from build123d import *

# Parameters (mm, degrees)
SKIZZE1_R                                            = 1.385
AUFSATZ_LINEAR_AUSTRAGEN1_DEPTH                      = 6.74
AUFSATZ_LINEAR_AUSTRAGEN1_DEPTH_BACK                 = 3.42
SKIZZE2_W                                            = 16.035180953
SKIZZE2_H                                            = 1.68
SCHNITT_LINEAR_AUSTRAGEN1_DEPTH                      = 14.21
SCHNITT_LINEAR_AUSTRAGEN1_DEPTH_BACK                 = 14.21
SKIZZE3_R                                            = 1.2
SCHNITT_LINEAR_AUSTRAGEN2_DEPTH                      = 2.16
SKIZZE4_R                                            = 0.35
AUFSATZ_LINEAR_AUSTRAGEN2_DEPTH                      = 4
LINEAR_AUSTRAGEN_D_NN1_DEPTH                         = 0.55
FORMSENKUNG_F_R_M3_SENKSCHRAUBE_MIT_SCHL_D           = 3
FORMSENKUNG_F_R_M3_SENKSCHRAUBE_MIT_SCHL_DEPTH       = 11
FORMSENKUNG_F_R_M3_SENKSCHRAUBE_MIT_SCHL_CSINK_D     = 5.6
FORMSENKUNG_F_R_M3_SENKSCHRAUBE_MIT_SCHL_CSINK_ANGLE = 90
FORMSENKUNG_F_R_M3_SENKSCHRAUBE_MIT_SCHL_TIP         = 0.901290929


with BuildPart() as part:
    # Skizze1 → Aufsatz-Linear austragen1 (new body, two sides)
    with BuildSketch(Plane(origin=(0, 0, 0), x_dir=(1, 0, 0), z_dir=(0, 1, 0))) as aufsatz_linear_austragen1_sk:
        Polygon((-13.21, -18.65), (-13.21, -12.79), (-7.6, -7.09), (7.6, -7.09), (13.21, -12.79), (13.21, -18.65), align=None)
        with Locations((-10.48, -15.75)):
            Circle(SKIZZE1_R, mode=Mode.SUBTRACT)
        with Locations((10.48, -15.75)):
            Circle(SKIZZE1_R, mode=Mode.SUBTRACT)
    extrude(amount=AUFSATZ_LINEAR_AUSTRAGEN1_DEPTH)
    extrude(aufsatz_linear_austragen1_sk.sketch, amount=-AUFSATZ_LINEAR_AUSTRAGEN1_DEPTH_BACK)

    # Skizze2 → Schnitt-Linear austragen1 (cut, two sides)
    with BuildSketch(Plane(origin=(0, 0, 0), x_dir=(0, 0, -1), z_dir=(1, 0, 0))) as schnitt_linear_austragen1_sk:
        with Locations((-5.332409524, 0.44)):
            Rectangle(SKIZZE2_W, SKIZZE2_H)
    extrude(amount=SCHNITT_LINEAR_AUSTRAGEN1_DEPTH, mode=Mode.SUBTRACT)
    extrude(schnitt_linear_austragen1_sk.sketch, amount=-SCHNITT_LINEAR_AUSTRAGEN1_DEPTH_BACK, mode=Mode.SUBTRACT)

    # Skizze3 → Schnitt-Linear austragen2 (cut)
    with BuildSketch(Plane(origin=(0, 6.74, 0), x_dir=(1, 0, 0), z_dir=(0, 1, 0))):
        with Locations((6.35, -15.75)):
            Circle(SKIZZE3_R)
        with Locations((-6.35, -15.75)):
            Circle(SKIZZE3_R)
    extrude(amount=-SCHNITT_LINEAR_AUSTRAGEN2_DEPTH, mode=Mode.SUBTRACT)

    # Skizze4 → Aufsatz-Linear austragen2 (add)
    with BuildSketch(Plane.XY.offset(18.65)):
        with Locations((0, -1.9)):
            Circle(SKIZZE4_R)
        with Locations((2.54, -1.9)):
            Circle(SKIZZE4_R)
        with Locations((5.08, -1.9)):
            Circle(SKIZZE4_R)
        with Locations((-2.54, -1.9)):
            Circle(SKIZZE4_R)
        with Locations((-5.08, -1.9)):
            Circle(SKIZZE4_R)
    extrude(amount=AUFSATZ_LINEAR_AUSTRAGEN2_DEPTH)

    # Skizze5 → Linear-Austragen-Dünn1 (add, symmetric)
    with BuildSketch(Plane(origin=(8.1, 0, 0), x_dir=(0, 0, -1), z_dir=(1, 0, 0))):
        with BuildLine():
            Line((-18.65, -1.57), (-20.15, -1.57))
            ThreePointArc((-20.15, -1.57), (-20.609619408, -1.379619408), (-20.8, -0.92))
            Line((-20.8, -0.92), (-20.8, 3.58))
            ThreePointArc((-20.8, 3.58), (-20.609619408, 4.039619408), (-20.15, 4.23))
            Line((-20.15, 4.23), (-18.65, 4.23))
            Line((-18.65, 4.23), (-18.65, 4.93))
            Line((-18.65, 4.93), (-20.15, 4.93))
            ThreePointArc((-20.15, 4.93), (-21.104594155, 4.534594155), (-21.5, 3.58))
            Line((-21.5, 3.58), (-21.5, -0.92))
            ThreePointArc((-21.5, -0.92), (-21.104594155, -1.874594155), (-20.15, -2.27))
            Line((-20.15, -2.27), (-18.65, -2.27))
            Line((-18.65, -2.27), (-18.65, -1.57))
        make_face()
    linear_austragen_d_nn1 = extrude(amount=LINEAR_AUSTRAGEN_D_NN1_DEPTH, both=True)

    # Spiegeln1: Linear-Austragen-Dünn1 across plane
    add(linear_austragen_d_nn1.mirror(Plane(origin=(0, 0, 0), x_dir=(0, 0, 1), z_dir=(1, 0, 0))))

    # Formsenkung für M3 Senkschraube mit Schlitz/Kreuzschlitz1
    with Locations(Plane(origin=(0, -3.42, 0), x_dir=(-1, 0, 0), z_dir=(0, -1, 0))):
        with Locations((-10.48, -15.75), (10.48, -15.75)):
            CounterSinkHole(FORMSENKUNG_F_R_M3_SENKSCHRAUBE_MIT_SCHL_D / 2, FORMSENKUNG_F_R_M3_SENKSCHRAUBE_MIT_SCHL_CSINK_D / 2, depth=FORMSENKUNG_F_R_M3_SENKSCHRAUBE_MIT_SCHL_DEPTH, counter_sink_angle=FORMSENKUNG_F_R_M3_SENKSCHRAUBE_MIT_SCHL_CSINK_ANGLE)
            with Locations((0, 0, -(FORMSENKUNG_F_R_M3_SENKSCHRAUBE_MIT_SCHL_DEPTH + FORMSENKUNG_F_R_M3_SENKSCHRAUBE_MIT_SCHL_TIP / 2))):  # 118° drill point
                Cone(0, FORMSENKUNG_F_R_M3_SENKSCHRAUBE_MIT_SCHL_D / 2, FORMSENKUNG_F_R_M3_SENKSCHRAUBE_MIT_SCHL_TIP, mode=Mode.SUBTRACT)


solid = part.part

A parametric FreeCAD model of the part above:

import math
import FreeCAD as App
import Part
import Sketcher
from FreeCAD import Vector
Q = App.Units.Quantity

doc = App.newDocument("Part")
params = doc.addObject("Spreadsheet::Sheet", "Params")
for row, (alias, value) in enumerate([
    ("sketch1_diameter", "2.77 mm"),
    ("sketch1_width", "15.2 mm"),
    ("sketch1_width2", "26.42 mm"),
    ("sketch1_height", "5.86 mm"),
    ("pad1_length", "6.74 mm"),
    ("pad1_length2", "3.42 mm"),
    ("sketch2_width", "1.68 mm"),
    ("sketch3_diameter", "2.4 mm"),
    ("pocket2_length", "2.16 mm"),
    ("sketch4_diameter", "0.7 mm"),
    ("pad2_length", "4 mm"),
    ("sketch5_radius", "0.65 mm"),
    ("sketch5_radius2", "1.35 mm"),
    ("sketch5_width", "4.5 mm"),
    ("sketch5_height", "1.5 mm"),
    ("pad3_length", "1.1 mm"),
    ("sketch6_diameter", "3 mm"),
    ("hole_diameter", "3 mm"),
    ("hole_depth", "11 mm"),
    ("hole_csink_diameter", "5.6 mm"),
], start=1):
    params.set(f"A{row}", alias)
    params.set(f"B{row}", "=" + value)
    params.setAlias(f"B{row}", alias)

body = doc.addObject("PartDesign::Body", "Body")

sketch1 = body.newObject("Sketcher::SketchObject", "Sketch")
sketch1.AttachmentSupport = (doc.getObject("XZ_Plane"), [""])
sketch1.MapMode = "FlatFace"
sketch1.addGeometry([
    Part.LineSegment(Vector(-13.21, 12.79, 0), Vector(-13.21, 18.65, 0)),
    Part.LineSegment(Vector(-13.21, 18.65, 0), Vector(13.21, 18.65, 0)),
    Part.LineSegment(Vector(13.21, 18.65, 0), Vector(13.21, 12.79, 0)),
    Part.LineSegment(Vector(13.21, 12.79, 0), Vector(7.6, 7.09, 0)),
    Part.LineSegment(Vector(7.6, 7.09, 0), Vector(-7.6, 7.09, 0)),
    Part.LineSegment(Vector(-7.6, 7.09, 0), Vector(-13.21, 12.79, 0)),
    Part.Circle(Vector(10.48, 15.75, 0), Vector(0, 0, 1), 1.385),
    Part.Circle(Vector(-10.48, 15.75, 0), Vector(0, 0, 1), 1.385),
], False)
sketch1.addConstraint([
    Sketcher.Constraint("Coincident", 0, 2, 1, 1),
    Sketcher.Constraint("Coincident", 1, 2, 2, 1),
    Sketcher.Constraint("Coincident", 2, 2, 3, 1),
    Sketcher.Constraint("Coincident", 3, 2, 4, 1),
    Sketcher.Constraint("Coincident", 4, 2, 5, 1),
    Sketcher.Constraint("Coincident", 5, 2, 0, 1),
    Sketcher.Constraint("Vertical", 0),
    Sketcher.Constraint("Horizontal", 1),
    Sketcher.Constraint("Vertical", 2),
    Sketcher.Constraint("Horizontal", 4),
    Sketcher.Constraint("Equal", 6, 7),
    Sketcher.Constraint("Symmetric", 6, 3, 7, 3, -2),
    Sketcher.Constraint("Symmetric", 2, 2, 5, 2, -2),
    Sketcher.Constraint("Equal", 3, 5),
    Sketcher.Constraint("Diameter", 6, Q("2.77 mm")),
    Sketcher.Constraint("DistanceX", 4, 2, 4, 1, Q("15.2 mm")),
    Sketcher.Constraint("DistanceX", 1, 1, 1, 2, Q("26.42 mm")),
    Sketcher.Constraint("DistanceY", 0, 1, 0, 2, Q("5.86 mm")),
    Sketcher.Constraint("DistanceY", 7, 3, 0, 2, Q("2.9 mm")),
    Sketcher.Constraint("DistanceY", 3, 2, 2, 2, Q("5.7 mm")),
    Sketcher.Constraint("DistanceX", -1, 1, 6, 3, Q("10.48 mm")),
    Sketcher.Constraint("DistanceY", -1, 1, 6, 3, Q("15.75 mm")),
])
sketch1.setExpression("Constraints[14]", "Params.sketch1_diameter")
sketch1.setExpression("Constraints[15]", "Params.sketch1_width")
sketch1.setExpression("Constraints[16]", "Params.sketch1_width2")
sketch1.setExpression("Constraints[17]", "Params.sketch1_height")
pad1 = body.newObject("PartDesign::Pad", "Pad")
pad1.Profile = sketch1
pad1.Type = "TwoLengths"
pad1.setExpression("Length", "Params.pad1_length")
pad1.setExpression("Length2", "Params.pad1_length2")
pad1.Reversed = True

sketch2 = body.newObject("Sketcher::SketchObject", "Sketch001")
sketch2.AttachmentSupport = (doc.getObject("YZ_Plane"), [""])
sketch2.MapMode = "FlatFace"
sketch2.addGeometry([
    Part.LineSegment(Vector(1.28, 13.35, 0), Vector(-0.4, 13.35, 0)),
    Part.LineSegment(Vector(-0.4, 13.35, 0), Vector(-0.4, -2.685181, 0)),
    Part.LineSegment(Vector(-0.4, -2.685181, 0), Vector(1.28, -2.685181, 0)),
    Part.LineSegment(Vector(1.28, -2.685181, 0), Vector(1.28, 13.35, 0)),
], False)
sketch2.addConstraint([
    Sketcher.Constraint("Coincident", 0, 2, 1, 1),
    Sketcher.Constraint("Coincident", 1, 2, 2, 1),
    Sketcher.Constraint("Coincident", 2, 2, 3, 1),
    Sketcher.Constraint("Coincident", 3, 2, 0, 1),
    Sketcher.Constraint("Horizontal", 0),
    Sketcher.Constraint("Vertical", 1),
    Sketcher.Constraint("Horizontal", 2),
    Sketcher.Constraint("Vertical", 3),
    Sketcher.Constraint("DistanceX", 0, 2, 0, 1, Q("1.68 mm")),
    Sketcher.Constraint("DistanceX", 0, 2, -1, 1, Q("0.4 mm")),
    Sketcher.Constraint("DistanceY", -1, 1, 0, 2, Q("13.35 mm")),
    Sketcher.Constraint("DistanceY", 1, 2, 1, 1, Q("16.035181 mm")),
])
sketch2.setExpression("Constraints[8]", "Params.sketch2_width")
pocket1 = body.newObject("PartDesign::Pocket", "Pocket")
pocket1.Profile = sketch2
pocket1.Type = "ThroughAll"
pocket1.Midplane = True

sketch3 = body.newObject("Sketcher::SketchObject", "Sketch002")
sketch3.AttachmentSupport = (doc.getObject("XZ_Plane"), [""])
sketch3.MapMode = "FlatFace"
sketch3.AttachmentOffset = App.Placement(Vector(0, 0, -6.74), App.Rotation())
sketch3.addGeometry([
    Part.Circle(Vector(6.35, 15.75, 0), Vector(0, 0, 1), 1.2),
    Part.Circle(Vector(-6.35, 15.75, 0), Vector(0, 0, 1), 1.2),
], False)
sketch3.addConstraint([
    Sketcher.Constraint("Equal", 0, 1),
    Sketcher.Constraint("Symmetric", 0, 3, 1, 3, -2),
    Sketcher.Constraint("Diameter", 0, Q("2.4 mm")),
    Sketcher.Constraint("DistanceX", 1, 3, 0, 3, Q("12.7 mm")),
    Sketcher.Constraint("DistanceY", -1, 1, 0, 3, Q("15.75 mm")),
])
sketch3.setExpression("Constraints[2]", "Params.sketch3_diameter")
pocket2 = body.newObject("PartDesign::Pocket", "Pocket001")
pocket2.Profile = sketch3
pocket2.setExpression("Length", "Params.pocket2_length")
pocket2.Reversed = True

sketch4 = body.newObject("Sketcher::SketchObject", "Sketch003")
sketch4.AttachmentSupport = (doc.getObject("XY_Plane"), [""])
sketch4.MapMode = "FlatFace"
sketch4.AttachmentOffset = App.Placement(Vector(0, 0, 18.65), App.Rotation())
sketch4.addGeometry([
    Part.Circle(Vector(0, -1.9, 0), Vector(0, 0, 1), 0.35),
    Part.Circle(Vector(2.54, -1.9, 0), Vector(0, 0, 1), 0.35),
    Part.Circle(Vector(5.08, -1.9, 0), Vector(0, 0, 1), 0.35),
    Part.Circle(Vector(-2.54, -1.9, 0), Vector(0, 0, 1), 0.35),
    Part.Circle(Vector(-5.08, -1.9, 0), Vector(0, 0, 1), 0.35),
], False)
sketch4.addConstraint([
    Sketcher.Constraint("Equal", 0, 1),
    Sketcher.Constraint("Equal", 1, 2),
    Sketcher.Constraint("Equal", 2, 3),
    Sketcher.Constraint("Equal", 3, 4),
    Sketcher.Constraint("Symmetric", 1, 3, 3, 3, -2),
    Sketcher.Constraint("Symmetric", 2, 3, 4, 3, -2),
    Sketcher.Constraint("PointOnObject", 0, 3, -2),
    Sketcher.Constraint("Horizontal", 0, 3, 1, 3),
    Sketcher.Constraint("Horizontal", 1, 3, 2, 3),
    Sketcher.Constraint("Diameter", 0, Q("0.7 mm")),
    Sketcher.Constraint("DistanceY", 0, 3, -1, 1, Q("1.9 mm")),
    Sketcher.Constraint("DistanceX", -1, 1, 1, 3, Q("2.54 mm")),
    Sketcher.Constraint("DistanceX", -1, 1, 2, 3, Q("5.08 mm")),
])
sketch4.setExpression("Constraints[9]", "Params.sketch4_diameter")
pad2 = body.newObject("PartDesign::Pad", "Pad001")
pad2.Profile = sketch4
pad2.setExpression("Length", "Params.pad2_length")

sketch5 = body.newObject("Sketcher::SketchObject", "Sketch004")
sketch5.AttachmentSupport = (doc.getObject("YZ_Plane"), [""])
sketch5.MapMode = "FlatFace"
sketch5.AttachmentOffset = App.Placement(Vector(0, 0, 8.1), App.Rotation())
sketch5.addGeometry([
    Part.LineSegment(Vector(-1.57, 18.65, 0), Vector(-1.57, 20.15, 0)),
    Part.ArcOfCircle(Part.Circle(Vector(-0.92, 20.15, 0), Vector(0, 0, 1), 0.65), math.radians(90), math.radians(180)),
    Part.LineSegment(Vector(-0.92, 20.8, 0), Vector(3.58, 20.8, 0)),
    Part.ArcOfCircle(Part.Circle(Vector(3.58, 20.15, 0), Vector(0, 0, 1), 0.65), math.radians(0), math.radians(90)),
    Part.LineSegment(Vector(4.23, 20.15, 0), Vector(4.23, 18.65, 0)),
    Part.LineSegment(Vector(4.23, 18.65, 0), Vector(4.93, 18.65, 0)),
    Part.LineSegment(Vector(4.93, 18.65, 0), Vector(4.93, 20.15, 0)),
    Part.ArcOfCircle(Part.Circle(Vector(3.58, 20.15, 0), Vector(0, 0, 1), 1.35), math.radians(0), math.radians(90)),
    Part.LineSegment(Vector(3.58, 21.5, 0), Vector(-0.92, 21.5, 0)),
    Part.ArcOfCircle(Part.Circle(Vector(-0.92, 20.15, 0), Vector(0, 0, 1), 1.35), math.radians(90), math.radians(180)),
    Part.LineSegment(Vector(-2.27, 20.15, 0), Vector(-2.27, 18.65, 0)),
    Part.LineSegment(Vector(-2.27, 18.65, 0), Vector(-1.57, 18.65, 0)),
], False)
sketch5.addConstraint([
    Sketcher.Constraint("Tangent", 0, 2, 1, 2),
    Sketcher.Constraint("Tangent", 1, 1, 2, 1),
    Sketcher.Constraint("Tangent", 2, 2, 3, 2),
    Sketcher.Constraint("Tangent", 3, 1, 4, 1),
    Sketcher.Constraint("Coincident", 4, 2, 5, 1),
    Sketcher.Constraint("Coincident", 5, 2, 6, 1),
    Sketcher.Constraint("Tangent", 6, 2, 7, 1),
    Sketcher.Constraint("Tangent", 7, 2, 8, 1),
    Sketcher.Constraint("Tangent", 8, 2, 9, 1),
    Sketcher.Constraint("Tangent", 9, 2, 10, 1),
    Sketcher.Constraint("Coincident", 10, 2, 11, 1),
    Sketcher.Constraint("Coincident", 11, 2, 0, 1),
    Sketcher.Constraint("Vertical", 0),
    Sketcher.Constraint("Horizontal", 2),
    Sketcher.Constraint("Vertical", 4),
    Sketcher.Constraint("Horizontal", 5),
    Sketcher.Constraint("Vertical", 6),
    Sketcher.Constraint("Horizontal", 8),
    Sketcher.Constraint("Vertical", 10),
    Sketcher.Constraint("Horizontal", 11),
    Sketcher.Constraint("Coincident", 7, 3, 3, 3),
    Sketcher.Constraint("Coincident", 9, 3, 1, 3),
    Sketcher.Constraint("Equal", 1, 3),
    Sketcher.Constraint("Horizontal", 5, 2, 10, 2),
    Sketcher.Constraint("Radius", 1, Q("0.65 mm")),
    Sketcher.Constraint("Radius", 7, Q("1.35 mm")),
    Sketcher.Constraint("DistanceX", 2, 1, 2, 2, Q("4.5 mm")),
    Sketcher.Constraint("DistanceY", 0, 1, 0, 2, Q("1.5 mm")),
    Sketcher.Constraint("DistanceY", -1, 1, 1, 1, Q("20.8 mm")),
    Sketcher.Constraint("DistanceX", 1, 3, -1, 1, Q("0.92 mm")),
])
sketch5.setExpression("Constraints[24]", "Params.sketch5_radius")
sketch5.setExpression("Constraints[25]", "Params.sketch5_radius2")
sketch5.setExpression("Constraints[26]", "Params.sketch5_width")
sketch5.setExpression("Constraints[27]", "Params.sketch5_height")
pad3 = body.newObject("PartDesign::Pad", "Pad002")
pad3.Profile = sketch5
pad3.setExpression("Length", "Params.pad3_length")
pad3.Midplane = True
doc.recompute()

mirrored = body.newObject("PartDesign::Mirrored", "Mirrored")
mirrored.Originals = [pad3]
mirrored.MirrorPlane = (doc.getObject("YZ_Plane"), [""])
body.Tip = mirrored

sketch6 = body.newObject("Sketcher::SketchObject", "Sketch005")
sketch6.AttachmentSupport = (doc.getObject("XZ_Plane"), [""])
sketch6.MapMode = "FlatFace"
sketch6.AttachmentOffset = App.Placement(Vector(0, 0, 3.42), App.Rotation())
sketch6.addGeometry([
    Part.Circle(Vector(10.48, 15.75, 0), Vector(0, 0, 1), 1.5),
    Part.Circle(Vector(-10.48, 15.75, 0), Vector(0, 0, 1), 1.5),
], False)
sketch6.addConstraint([
    Sketcher.Constraint("Equal", 0, 1),
    Sketcher.Constraint("Symmetric", 0, 3, 1, 3, -2),
    Sketcher.Constraint("Diameter", 0, Q("3 mm")),
    Sketcher.Constraint("DistanceX", -1, 1, 0, 3, Q("10.48 mm")),
    Sketcher.Constraint("DistanceY", -1, 1, 0, 3, Q("15.75 mm")),
])
sketch6.setExpression("Constraints[2]", "Params.sketch6_diameter")
doc.recompute()
hole = body.newObject("PartDesign::Hole", "Hole")
hole.Profile = sketch6
hole.ThreadType = "None"
hole.setExpression("Diameter", "Params.hole_diameter")
hole.DepthType = "Dimension"
hole.setExpression("Depth", "Params.hole_depth")
hole.DrillPoint = "Angled"
hole.DrillPointAngle = 118
hole.HoleCutType = "Countersink"
hole.setExpression("HoleCutDiameter", "Params.hole_csink_diameter")
hole.HoleCutCountersinkAngle = 90

doc.recompute()
